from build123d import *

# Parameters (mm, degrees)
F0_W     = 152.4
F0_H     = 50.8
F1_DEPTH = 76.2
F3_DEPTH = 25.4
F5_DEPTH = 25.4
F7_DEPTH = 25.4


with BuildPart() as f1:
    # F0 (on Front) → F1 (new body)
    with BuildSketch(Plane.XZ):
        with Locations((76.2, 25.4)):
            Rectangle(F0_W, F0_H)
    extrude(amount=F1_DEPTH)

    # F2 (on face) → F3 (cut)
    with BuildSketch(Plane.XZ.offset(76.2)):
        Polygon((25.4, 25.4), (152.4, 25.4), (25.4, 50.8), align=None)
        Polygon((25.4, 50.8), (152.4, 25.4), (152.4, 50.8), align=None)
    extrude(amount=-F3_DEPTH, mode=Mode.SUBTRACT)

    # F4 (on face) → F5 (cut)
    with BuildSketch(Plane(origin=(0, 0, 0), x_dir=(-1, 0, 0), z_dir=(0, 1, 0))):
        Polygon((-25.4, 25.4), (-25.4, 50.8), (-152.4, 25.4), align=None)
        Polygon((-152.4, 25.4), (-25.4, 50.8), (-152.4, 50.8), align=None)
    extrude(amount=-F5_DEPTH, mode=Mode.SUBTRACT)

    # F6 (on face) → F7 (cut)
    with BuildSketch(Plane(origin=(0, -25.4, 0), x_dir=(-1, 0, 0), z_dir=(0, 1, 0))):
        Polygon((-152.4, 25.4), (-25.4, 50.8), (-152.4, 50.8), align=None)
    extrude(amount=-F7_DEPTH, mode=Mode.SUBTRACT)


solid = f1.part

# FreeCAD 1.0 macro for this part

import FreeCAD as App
import Part
import Sketcher
from FreeCAD import Vector
Q = App.Units.Quantity


def add_polygon(sketch, points):
    """Adds a closed chain of lines whose ends are joined by coincident constraints."""
    first, n = sketch.GeometryCount, len(points)
    for a, b in zip(points, points[1:] + points[:1]):
        sketch.addGeometry(Part.LineSegment(App.Vector(*a, 0), App.Vector(*b, 0)), False)
    for i in range(n):
        sketch.addConstraint(Sketcher.Constraint("Coincident", first + i, 2, first + (i + 1) % n, 1))

doc = App.newDocument("Part")
body = doc.addObject("PartDesign::Body", "Body")

# Sketch on XZ plane
sketch1 = body.newObject("Sketcher::SketchObject", "Sketch")
sketch1.AttachmentSupport = (doc.getObject("XZ_Plane"), [""])
sketch1.MapMode = "FlatFace"
add_polygon(sketch1, [(0, 50.8), (0, 0), (152.4, 0), (152.4, 50.8)])  # lines 0-3
sketch1.addConstraint(Sketcher.Constraint("Vertical", 0))
sketch1.addConstraint(Sketcher.Constraint("Horizontal", 1))
sketch1.addConstraint(Sketcher.Constraint("Vertical", 2))
sketch1.addConstraint(Sketcher.Constraint("Horizontal", 3))
sketch1.addConstraint(Sketcher.Constraint("Coincident", 0, 2, -1, 1))
sketch1.addConstraint(Sketcher.Constraint("DistanceX", 1, 1, 1, 2, Q("6 in")))
sketch1.addConstraint(Sketcher.Constraint("DistanceY", 0, 2, 0, 1, Q("2 in")))
pad1 = body.newObject("PartDesign::Pad", "Pad")
pad1.Profile = sketch1
pad1.Length = Q("3 in")

# Sketch on XZ plane
sketch2 = body.newObject("Sketcher::SketchObject", "Sketch001")
sketch2.AttachmentSupport = (doc.getObject("XZ_Plane"), [""])
sketch2.MapMode = "FlatFace"
sketch2.AttachmentOffset = App.Placement(Vector(0, 0, 3 * 25.4), App.Rotation())
add_polygon(sketch2, [(25.4, 25.4), (152.4, 25.4), (152.4, 50.8), (25.4, 50.8)])  # lines 0-3
sketch2.addConstraint(Sketcher.Constraint("Horizontal", 0))
sketch2.addConstraint(Sketcher.Constraint("Vertical", 1))
sketch2.addConstraint(Sketcher.Constraint("Horizontal", 2))
sketch2.addConstraint(Sketcher.Constraint("Vertical", 3))
sketch2.addConstraint(Sketcher.Constraint("DistanceX", 0, 1, 0, 2, Q("5 in")))
sketch2.addConstraint(Sketcher.Constraint("DistanceY", 1, 1, 1, 2, Q("1 in")))
sketch2.addConstraint(Sketcher.Constraint("DistanceX", -1, 1, 0, 2, Q("6 in")))
sketch2.addConstraint(Sketcher.Constraint("DistanceY", -1, 1, 0, 2, Q("1 in")))
pocket1 = body.newObject("PartDesign::Pocket", "Pocket")
pocket1.Profile = sketch2
pocket1.Length = Q("1 in")

# Sketch on XZ plane
sketch3 = body.newObject("Sketcher::SketchObject", "Sketch002")
sketch3.AttachmentSupport = (doc.getObject("XZ_Plane"), [""])
sketch3.MapMode = "FlatFace"
add_polygon(sketch3, [(25.4, 25.4), (25.4, 50.8), (152.4, 50.8), (152.4, 25.4)])  # lines 0-3
sketch3.addConstraint(Sketcher.Constraint("Vertical", 0))
sketch3.addConstraint(Sketcher.Constraint("Horizontal", 1))
sketch3.addConstraint(Sketcher.Constraint("Vertical", 2))
sketch3.addConstraint(Sketcher.Constraint("Horizontal", 3))
sketch3.addConstraint(Sketcher.Constraint("DistanceX", 1, 1, 1, 2, Q("5 in")))
sketch3.addConstraint(Sketcher.Constraint("DistanceY", 0, 1, 0, 2, Q("1 in")))
sketch3.addConstraint(Sketcher.Constraint("DistanceX", -1, 1, 0, 2, Q("1 in")))
sketch3.addConstraint(Sketcher.Constraint("DistanceY", -1, 1, 0, 2, Q("2 in")))
pocket2 = body.newObject("PartDesign::Pocket", "Pocket001")
pocket2.Profile = sketch3
pocket2.Length = Q("1 in")
pocket2.Reversed = True

# Sketch on XZ plane
sketch4 = body.newObject("Sketcher::SketchObject", "Sketch003")
sketch4.AttachmentSupport = (doc.getObject("XZ_Plane"), [""])
sketch4.MapMode = "FlatFace"
sketch4.AttachmentOffset = App.Placement(Vector(0, 0, 1 * 25.4), App.Rotation())
add_polygon(sketch4, [(152.4, 25.4), (25.4, 50.8), (152.4, 50.8)])  # lines 0-2
sketch4.addConstraint(Sketcher.Constraint("Horizontal", 1))
sketch4.addConstraint(Sketcher.Constraint("Vertical", 2))
sketch4.addConstraint(Sketcher.Constraint("DistanceX", 1, 1, 1, 2, Q("5 in")))
sketch4.addConstraint(Sketcher.Constraint("DistanceY", 2, 2, 2, 1, Q("1 in")))
sketch4.addConstraint(Sketcher.Constraint("DistanceX", -1, 1, 0, 2, Q("1 in")))
sketch4.addConstraint(Sketcher.Constraint("DistanceY", -1, 1, 0, 2, Q("2 in")))
pocket3 = body.newObject("PartDesign::Pocket", "Pocket002")
pocket3.Profile = sketch4
pocket3.Length = Q("1 in")
pocket3.Reversed = True

doc.recompute()
